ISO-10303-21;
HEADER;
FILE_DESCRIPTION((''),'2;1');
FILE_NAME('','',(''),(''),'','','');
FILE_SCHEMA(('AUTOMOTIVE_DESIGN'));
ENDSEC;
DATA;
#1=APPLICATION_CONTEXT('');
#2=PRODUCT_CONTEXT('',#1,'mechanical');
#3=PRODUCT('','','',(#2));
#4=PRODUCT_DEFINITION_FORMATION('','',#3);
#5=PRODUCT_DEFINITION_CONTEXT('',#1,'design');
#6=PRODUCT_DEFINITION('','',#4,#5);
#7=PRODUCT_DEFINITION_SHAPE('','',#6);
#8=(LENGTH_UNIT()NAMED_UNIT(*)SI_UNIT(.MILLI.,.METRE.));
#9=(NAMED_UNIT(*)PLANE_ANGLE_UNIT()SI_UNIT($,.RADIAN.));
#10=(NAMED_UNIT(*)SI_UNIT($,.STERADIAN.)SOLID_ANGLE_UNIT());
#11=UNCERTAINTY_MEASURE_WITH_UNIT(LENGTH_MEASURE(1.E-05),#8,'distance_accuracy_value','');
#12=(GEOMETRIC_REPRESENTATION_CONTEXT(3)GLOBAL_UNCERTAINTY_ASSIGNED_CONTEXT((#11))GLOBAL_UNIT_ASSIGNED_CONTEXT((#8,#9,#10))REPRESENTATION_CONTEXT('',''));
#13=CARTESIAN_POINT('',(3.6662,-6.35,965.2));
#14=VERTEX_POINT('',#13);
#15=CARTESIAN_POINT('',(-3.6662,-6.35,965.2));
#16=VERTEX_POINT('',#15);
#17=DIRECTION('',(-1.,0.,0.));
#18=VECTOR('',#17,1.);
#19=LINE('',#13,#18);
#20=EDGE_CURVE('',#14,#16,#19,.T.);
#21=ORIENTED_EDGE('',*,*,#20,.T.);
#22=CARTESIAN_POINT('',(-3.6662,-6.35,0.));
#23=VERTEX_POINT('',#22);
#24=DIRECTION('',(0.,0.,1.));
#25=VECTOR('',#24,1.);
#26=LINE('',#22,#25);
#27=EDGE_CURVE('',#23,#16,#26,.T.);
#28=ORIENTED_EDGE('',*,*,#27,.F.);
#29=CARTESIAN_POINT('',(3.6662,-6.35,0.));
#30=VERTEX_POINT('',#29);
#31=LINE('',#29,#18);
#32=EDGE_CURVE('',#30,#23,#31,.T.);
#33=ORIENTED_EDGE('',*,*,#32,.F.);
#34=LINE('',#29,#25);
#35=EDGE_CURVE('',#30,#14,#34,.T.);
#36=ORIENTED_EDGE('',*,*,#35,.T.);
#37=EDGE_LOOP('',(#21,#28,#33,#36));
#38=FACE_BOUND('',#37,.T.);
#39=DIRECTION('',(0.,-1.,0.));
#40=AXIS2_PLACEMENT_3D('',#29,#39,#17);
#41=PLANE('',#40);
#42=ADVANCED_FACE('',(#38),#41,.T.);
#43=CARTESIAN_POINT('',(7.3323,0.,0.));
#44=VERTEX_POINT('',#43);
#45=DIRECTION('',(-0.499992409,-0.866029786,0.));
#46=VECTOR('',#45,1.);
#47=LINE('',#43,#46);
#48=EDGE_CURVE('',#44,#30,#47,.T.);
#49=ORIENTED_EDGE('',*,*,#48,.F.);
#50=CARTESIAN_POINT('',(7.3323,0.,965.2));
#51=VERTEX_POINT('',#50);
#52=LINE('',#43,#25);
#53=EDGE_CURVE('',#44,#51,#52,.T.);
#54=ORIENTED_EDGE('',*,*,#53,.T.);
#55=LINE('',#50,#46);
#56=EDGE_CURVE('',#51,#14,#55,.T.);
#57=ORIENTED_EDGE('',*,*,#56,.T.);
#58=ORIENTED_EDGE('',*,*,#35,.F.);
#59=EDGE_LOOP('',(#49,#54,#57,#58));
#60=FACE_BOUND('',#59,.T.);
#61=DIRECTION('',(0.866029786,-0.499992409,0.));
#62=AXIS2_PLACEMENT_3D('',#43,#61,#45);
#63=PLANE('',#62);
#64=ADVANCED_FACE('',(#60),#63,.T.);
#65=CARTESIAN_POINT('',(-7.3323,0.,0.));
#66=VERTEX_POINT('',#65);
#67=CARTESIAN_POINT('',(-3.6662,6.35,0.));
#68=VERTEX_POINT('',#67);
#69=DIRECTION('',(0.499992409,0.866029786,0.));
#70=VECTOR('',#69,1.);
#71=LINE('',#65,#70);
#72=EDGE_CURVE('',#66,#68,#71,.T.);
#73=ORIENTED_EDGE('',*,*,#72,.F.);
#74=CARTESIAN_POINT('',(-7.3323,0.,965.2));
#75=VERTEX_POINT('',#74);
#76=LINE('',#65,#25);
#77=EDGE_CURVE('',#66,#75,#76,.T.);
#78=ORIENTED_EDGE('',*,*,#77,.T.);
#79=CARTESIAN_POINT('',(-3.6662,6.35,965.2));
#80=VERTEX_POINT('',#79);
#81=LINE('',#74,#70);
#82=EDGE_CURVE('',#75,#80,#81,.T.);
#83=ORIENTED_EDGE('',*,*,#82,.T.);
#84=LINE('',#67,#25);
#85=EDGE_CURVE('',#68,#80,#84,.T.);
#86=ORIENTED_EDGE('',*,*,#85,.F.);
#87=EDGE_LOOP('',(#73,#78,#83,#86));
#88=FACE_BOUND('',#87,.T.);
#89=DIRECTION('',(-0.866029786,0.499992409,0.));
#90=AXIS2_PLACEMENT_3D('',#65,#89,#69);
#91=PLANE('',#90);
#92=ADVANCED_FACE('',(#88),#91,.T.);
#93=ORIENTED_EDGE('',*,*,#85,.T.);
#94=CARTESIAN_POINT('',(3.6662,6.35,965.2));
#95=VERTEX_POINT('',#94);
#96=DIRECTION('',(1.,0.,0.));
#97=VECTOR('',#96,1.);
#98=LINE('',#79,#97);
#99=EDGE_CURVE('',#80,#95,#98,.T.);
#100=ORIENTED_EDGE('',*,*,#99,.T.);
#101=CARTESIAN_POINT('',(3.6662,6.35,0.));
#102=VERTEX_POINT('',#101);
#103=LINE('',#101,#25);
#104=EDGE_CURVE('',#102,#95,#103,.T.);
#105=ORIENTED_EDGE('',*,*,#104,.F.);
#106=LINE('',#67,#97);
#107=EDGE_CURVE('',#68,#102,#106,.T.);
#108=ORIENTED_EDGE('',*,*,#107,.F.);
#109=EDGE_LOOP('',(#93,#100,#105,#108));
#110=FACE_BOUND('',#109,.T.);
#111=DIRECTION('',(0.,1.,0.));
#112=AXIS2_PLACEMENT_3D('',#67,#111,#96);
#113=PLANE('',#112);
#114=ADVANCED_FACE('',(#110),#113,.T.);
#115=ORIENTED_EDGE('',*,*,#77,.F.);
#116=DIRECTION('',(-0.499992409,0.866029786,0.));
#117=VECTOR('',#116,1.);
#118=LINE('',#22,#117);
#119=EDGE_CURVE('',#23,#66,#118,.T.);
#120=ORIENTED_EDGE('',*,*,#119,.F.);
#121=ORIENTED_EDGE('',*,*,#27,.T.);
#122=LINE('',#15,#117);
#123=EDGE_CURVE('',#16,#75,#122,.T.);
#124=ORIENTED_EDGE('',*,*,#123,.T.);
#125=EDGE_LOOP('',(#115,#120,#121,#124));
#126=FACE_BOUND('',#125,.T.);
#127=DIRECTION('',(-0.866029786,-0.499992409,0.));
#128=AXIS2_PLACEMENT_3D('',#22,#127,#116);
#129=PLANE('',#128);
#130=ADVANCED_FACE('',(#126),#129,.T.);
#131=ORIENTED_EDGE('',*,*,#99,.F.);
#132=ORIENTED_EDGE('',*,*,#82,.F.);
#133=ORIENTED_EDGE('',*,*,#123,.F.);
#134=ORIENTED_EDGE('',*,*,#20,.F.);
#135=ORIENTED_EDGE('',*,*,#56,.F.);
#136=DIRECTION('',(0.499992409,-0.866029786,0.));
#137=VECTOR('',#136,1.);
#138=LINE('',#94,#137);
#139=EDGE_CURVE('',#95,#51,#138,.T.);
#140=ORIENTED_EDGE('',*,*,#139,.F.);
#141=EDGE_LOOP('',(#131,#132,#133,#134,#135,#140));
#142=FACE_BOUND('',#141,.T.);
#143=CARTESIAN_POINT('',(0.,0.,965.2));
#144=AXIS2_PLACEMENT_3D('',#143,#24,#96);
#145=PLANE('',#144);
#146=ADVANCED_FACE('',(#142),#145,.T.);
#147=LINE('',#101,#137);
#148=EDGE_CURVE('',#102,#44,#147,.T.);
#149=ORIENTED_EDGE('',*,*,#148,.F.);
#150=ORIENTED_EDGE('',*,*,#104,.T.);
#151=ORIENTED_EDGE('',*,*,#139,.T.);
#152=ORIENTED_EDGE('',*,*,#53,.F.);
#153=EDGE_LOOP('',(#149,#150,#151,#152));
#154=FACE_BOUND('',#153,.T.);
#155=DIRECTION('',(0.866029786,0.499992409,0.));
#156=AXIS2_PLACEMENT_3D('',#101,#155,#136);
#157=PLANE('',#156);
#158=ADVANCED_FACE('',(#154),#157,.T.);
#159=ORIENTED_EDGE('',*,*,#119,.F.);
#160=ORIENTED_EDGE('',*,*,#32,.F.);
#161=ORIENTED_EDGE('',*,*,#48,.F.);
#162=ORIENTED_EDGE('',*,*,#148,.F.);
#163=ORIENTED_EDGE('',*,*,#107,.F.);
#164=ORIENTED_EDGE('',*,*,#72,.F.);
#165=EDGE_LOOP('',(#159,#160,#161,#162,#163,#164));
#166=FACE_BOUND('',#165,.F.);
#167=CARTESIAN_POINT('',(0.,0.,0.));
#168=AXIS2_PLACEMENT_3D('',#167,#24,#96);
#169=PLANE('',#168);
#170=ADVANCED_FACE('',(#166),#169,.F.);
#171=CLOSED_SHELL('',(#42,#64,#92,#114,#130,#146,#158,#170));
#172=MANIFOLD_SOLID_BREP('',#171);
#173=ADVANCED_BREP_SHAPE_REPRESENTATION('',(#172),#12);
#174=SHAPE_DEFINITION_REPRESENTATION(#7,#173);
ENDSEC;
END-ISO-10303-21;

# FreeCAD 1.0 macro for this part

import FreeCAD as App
import Part
import Sketcher
from FreeCAD import Vector
Q = App.Units.Quantity

doc = App.newDocument("Part")
body = doc.addObject("PartDesign::Body", "Body")

# Sketch on XY plane
sketch1 = body.newObject("Sketcher::SketchObject", "Sketch")
sketch1.AttachmentSupport = (doc.getObject("XY_Plane"), [""])
sketch1.MapMode = "FlatFace"
sketch1.addGeometry([
    Part.LineSegment(Vector(7, 0, 0), Vector(4, 6, 0)),  # 0
    Part.LineSegment(Vector(4, 6, 0), Vector(-4, 6, 0)),  # 1
    Part.LineSegment(Vector(-4, 6, 0), Vector(-7, 0, 0)),  # 2
    Part.LineSegment(Vector(-7, 0, 0), Vector(-4, -6, 0)),  # 3
    Part.LineSegment(Vector(-4, -6, 0), Vector(4, -6, 0)),  # 4
    Part.LineSegment(Vector(4, -6, 0), Vector(7, 0, 0)),  # 5
], False)
sketch1.addConstraint([
    Sketcher.Constraint("Coincident", 0, 2, 1, 1),
    Sketcher.Constraint("Coincident", 1, 2, 2, 1),
    Sketcher.Constraint("Coincident", 2, 2, 3, 1),
    Sketcher.Constraint("Coincident", 3, 2, 4, 1),
    Sketcher.Constraint("Coincident", 4, 2, 5, 1),
    Sketcher.Constraint("Coincident", 5, 2, 0, 1),
    Sketcher.Constraint("Horizontal", 1),
    Sketcher.Constraint("Horizontal", 4),
    Sketcher.Constraint("Symmetric", 0, 2, 3, 2, -1, 1),
    Sketcher.Constraint("Symmetric", 2, 2, 5, 2, -1, 1),
    Sketcher.Constraint("PointOnObject", 2, 2, -1),
    Sketcher.Constraint("Parallel", 2, 5),
    Sketcher.Constraint("Vertical", 1, 2, 3, 2),
    Sketcher.Constraint("DistanceY", 3, 2, 1, 2, Q("0.5 in")),
    Sketcher.Constraint("Angle", 0, Q("119.9995 deg")),
    Sketcher.Constraint("DistanceX", 2, 2, 0, 2, Q("0.433 in")),
])
pad1 = body.newObject("PartDesign::Pad", "Pad")
pad1.Profile = sketch1
pad1.Length = Q("38 in")

doc.recompute()
